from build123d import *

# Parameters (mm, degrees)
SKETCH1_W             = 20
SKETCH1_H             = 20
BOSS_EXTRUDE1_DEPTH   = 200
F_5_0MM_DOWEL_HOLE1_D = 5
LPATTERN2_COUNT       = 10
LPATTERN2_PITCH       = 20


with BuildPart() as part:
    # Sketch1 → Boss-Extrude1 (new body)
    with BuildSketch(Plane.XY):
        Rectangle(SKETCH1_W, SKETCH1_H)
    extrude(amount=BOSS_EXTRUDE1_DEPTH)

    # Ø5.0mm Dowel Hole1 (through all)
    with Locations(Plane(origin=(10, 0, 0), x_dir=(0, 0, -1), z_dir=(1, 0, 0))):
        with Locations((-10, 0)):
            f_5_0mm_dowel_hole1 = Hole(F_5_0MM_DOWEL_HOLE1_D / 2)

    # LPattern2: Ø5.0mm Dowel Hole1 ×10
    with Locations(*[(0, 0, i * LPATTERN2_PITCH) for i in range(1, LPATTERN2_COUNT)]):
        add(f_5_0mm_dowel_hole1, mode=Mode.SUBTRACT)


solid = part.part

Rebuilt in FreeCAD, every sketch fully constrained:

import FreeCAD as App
import Part
import Sketcher

V = App.Vector
Q = App.Units.Quantity


def add_polygon(sketch, points):
    """Adds a closed chain of lines whose ends are joined by coincident constraints."""
    first, n = sketch.GeometryCount, len(points)
    for a, b in zip(points, points[1:] + points[:1]):
        sketch.addGeometry(Part.LineSegment(App.Vector(*a, 0), App.Vector(*b, 0)), False)
    for i in range(n):
        sketch.addConstraint(Sketcher.Constraint("Coincident", first + i, 2, first + (i + 1) % n, 1))

doc = App.newDocument("Part")
body = doc.addObject("PartDesign::Body", "Body")

# Sketch on XY plane
sketch1 = doc.addObject("Sketcher::SketchObject", "Sketch")
body.addObject(sketch1)
sketch1.AttachmentSupport = (doc.XY_Plane, [""])
sketch1.MapMode = "FlatFace"
add_polygon(sketch1, [(-10, 10), (-10, -10), (10, -10), (10, 10)])  # lines 0-3
sketch1.addConstraint([
    Sketcher.Constraint("Vertical", 0),
    Sketcher.Constraint("Horizontal", 1),
    Sketcher.Constraint("Vertical", 2),
    Sketcher.Constraint("Horizontal", 3),
    Sketcher.Constraint("Symmetric", 0, 2, 2, 2, -1, 1),
    Sketcher.Constraint("Equal", 3, 0),
    Sketcher.Constraint("DistanceX", 1, 1, 1, 2, Q("20 mm")),
])
pad1 = doc.addObject("PartDesign::Pad", "Pad")
body.addObject(pad1)
pad1.Profile = sketch1
pad1.Length = 200

# Sketch on YZ plane
sketch2 = doc.addObject("Sketcher::SketchObject", "Sketch001")
body.addObject(sketch2)
sketch2.AttachmentSupport = (doc.YZ_Plane, [""])
sketch2.MapMode = "FlatFace"
sketch2.AttachmentOffset = App.Placement(V(0, 0, 10), App.Rotation())
sketch2.addGeometry(Part.Circle(V(0, 10, 0), V(0, 0, 1), 2.5), False)
sketch2.addConstraint([
    Sketcher.Constraint("PointOnObject", 0, 3, -2),
    Sketcher.Constraint("Diameter", 0, Q("5 mm")),
    Sketcher.Constraint("DistanceY", -1, 1, 0, 3, Q("10 mm")),
])
doc.recompute()
hole = doc.addObject("PartDesign::Hole", "Hole")
body.addObject(hole)
hole.Profile = sketch2
hole.ThreadType = "None"
hole.Diameter = 5
hole.DepthType = "ThroughAll"
doc.recompute()

linearpattern = doc.addObject("PartDesign::LinearPattern", "LinearPattern")
body.addObject(linearpattern)
linearpattern.Originals = [hole]
linearpattern.Direction = (doc.Z_Axis, [""])
linearpattern.Mode = "offset"
linearpattern.Offset = 20
linearpattern.Occurrences = 10
body.Tip = linearpattern

doc.recompute()
